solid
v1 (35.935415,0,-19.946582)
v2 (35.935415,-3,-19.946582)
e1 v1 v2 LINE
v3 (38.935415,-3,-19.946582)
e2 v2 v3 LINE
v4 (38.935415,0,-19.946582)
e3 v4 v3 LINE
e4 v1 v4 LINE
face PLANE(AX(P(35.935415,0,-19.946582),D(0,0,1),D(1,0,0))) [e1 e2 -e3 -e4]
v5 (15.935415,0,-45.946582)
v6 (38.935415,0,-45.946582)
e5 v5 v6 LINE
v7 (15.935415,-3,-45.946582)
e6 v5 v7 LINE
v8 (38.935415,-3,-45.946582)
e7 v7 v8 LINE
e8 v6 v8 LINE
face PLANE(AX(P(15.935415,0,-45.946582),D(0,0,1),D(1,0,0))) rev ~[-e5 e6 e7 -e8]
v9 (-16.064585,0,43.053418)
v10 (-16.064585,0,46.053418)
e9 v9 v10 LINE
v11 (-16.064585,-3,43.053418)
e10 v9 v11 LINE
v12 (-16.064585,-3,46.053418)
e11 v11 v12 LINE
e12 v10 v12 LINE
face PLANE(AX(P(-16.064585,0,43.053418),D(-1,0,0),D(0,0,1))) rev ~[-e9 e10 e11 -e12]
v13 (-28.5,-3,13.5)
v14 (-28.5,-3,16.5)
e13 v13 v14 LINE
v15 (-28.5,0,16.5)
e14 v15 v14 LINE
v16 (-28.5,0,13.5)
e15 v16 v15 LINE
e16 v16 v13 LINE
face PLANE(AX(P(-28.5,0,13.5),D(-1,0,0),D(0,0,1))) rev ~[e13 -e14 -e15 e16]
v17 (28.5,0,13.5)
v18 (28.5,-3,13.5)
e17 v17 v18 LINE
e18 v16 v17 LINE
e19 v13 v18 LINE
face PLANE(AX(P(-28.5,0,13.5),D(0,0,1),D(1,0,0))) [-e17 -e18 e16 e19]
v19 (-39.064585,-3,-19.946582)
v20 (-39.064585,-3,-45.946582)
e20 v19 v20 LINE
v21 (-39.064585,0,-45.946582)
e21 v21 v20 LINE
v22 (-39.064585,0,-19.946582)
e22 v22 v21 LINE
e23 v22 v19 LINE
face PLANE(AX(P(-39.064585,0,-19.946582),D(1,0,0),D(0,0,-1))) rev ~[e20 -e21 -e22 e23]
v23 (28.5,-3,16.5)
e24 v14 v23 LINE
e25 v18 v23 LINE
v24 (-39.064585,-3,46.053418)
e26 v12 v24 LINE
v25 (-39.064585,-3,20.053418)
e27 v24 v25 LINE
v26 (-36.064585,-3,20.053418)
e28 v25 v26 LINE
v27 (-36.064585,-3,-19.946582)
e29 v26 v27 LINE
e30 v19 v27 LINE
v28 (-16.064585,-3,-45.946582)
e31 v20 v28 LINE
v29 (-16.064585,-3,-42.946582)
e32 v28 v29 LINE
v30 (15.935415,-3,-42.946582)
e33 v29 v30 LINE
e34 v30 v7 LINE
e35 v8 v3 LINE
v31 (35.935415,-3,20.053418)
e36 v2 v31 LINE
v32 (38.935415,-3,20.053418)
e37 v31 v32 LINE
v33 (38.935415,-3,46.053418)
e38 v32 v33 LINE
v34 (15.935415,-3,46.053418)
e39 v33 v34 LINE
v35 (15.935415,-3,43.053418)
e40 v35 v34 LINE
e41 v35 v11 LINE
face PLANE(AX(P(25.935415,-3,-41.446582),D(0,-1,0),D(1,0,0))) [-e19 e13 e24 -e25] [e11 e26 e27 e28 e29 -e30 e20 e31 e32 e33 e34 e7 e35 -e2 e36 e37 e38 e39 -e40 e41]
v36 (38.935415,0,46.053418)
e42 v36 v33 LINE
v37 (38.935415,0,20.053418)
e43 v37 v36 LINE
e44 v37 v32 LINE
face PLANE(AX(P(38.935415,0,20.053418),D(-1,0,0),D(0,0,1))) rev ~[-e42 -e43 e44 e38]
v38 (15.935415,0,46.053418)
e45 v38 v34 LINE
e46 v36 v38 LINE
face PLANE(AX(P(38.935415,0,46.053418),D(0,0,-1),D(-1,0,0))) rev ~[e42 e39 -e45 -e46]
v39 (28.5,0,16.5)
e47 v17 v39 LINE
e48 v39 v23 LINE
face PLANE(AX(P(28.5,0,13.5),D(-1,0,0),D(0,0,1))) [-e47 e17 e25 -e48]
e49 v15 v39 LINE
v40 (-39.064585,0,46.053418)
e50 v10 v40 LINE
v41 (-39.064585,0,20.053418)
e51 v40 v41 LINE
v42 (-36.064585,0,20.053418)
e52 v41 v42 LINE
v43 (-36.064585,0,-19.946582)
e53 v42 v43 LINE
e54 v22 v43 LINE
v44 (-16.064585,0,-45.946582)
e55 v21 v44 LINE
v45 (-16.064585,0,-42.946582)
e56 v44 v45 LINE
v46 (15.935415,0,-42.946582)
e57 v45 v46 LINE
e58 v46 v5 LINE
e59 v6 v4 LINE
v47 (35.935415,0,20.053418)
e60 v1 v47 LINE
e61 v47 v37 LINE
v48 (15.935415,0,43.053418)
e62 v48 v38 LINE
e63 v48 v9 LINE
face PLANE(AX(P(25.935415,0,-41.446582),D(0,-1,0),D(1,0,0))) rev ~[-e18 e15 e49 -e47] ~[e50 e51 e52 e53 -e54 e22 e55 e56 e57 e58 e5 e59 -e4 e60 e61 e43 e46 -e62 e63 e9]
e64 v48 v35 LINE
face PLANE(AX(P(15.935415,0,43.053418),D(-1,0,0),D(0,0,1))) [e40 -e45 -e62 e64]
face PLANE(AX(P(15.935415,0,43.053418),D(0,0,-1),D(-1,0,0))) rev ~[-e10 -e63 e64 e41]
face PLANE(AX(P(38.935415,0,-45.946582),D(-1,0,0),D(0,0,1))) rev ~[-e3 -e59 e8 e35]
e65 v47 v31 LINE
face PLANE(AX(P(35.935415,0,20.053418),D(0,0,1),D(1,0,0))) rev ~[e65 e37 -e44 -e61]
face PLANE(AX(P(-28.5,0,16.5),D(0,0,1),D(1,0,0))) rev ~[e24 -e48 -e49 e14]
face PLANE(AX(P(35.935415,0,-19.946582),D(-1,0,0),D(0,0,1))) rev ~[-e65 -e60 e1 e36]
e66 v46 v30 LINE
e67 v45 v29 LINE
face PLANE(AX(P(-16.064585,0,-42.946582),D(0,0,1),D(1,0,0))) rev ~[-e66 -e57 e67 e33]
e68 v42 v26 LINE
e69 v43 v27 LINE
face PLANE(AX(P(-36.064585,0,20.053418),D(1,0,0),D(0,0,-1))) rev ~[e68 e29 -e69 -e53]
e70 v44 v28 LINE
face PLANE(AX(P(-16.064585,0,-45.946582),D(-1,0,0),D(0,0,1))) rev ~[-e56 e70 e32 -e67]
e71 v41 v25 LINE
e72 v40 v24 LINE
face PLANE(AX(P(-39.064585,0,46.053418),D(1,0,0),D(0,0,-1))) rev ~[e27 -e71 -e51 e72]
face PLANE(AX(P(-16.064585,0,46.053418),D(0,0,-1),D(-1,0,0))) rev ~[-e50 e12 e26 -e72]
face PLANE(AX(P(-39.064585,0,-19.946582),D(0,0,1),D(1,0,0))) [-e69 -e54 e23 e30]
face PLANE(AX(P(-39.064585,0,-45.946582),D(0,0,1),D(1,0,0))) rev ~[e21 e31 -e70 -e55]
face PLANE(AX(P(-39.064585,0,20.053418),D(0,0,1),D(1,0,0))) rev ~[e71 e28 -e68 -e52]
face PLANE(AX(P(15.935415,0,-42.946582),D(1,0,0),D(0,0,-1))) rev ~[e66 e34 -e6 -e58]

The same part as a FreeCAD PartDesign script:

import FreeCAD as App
import Part
import Sketcher

V = App.Vector

doc = App.newDocument("Part")
body = doc.addObject("PartDesign::Body", "Body")

sketch1 = body.newObject("Sketcher::SketchObject", "Sketch")
sketch1.AttachmentSupport = (doc.getObject("XZ_Plane"), [""])
sketch1.MapMode = "FlatFace"
sketch1.addGeometry(Part.LineSegment(V(38.9, -19.9, 0), V(35.9, -19.9, 0)), False)
sketch1.addGeometry(Part.LineSegment(V(35.9, -19.9, 0), V(35.9, 20.1, 0)), False)
sketch1.addGeometry(Part.LineSegment(V(35.9, 20.1, 0), V(38.9, 20.1, 0)), False)
sketch1.addGeometry(Part.LineSegment(V(38.9, 20.1, 0), V(38.9, 46.1, 0)), False)
sketch1.addGeometry(Part.LineSegment(V(38.9, 46.1, 0), V(15.9, 46.1, 0)), False)
sketch1.addGeometry(Part.LineSegment(V(15.9, 46.1, 0), V(15.9, 43.1, 0)), False)
sketch1.addGeometry(Part.LineSegment(V(15.9, 43.1, 0), V(-16.1, 43.1, 0)), False)
sketch1.addGeometry(Part.LineSegment(V(-16.1, 43.1, 0), V(-16.1, 46.1, 0)), False)
sketch1.addGeometry(Part.LineSegment(V(-16.1, 46.1, 0), V(-39.1, 46.1, 0)), False)
sketch1.addGeometry(Part.LineSegment(V(-39.1, 46.1, 0), V(-39.1, 20.1, 0)), False)
sketch1.addGeometry(Part.LineSegment(V(-39.1, 20.1, 0), V(-36.1, 20.1, 0)), False)
sketch1.addGeometry(Part.LineSegment(V(-36.1, 20.1, 0), V(-36.1, -19.9, 0)), False)
sketch1.addGeometry(Part.LineSegment(V(-36.1, -19.9, 0), V(-39.1, -19.9, 0)), False)
sketch1.addGeometry(Part.LineSegment(V(-39.1, -19.9, 0), V(-39.1, -45.9, 0)), False)
sketch1.addGeometry(Part.LineSegment(V(-39.1, -45.9, 0), V(-16.1, -45.9, 0)), False)
sketch1.addGeometry(Part.LineSegment(V(-16.1, -45.9, 0), V(-16.1, -42.9, 0)), False)
sketch1.addGeometry(Part.LineSegment(V(-16.1, -42.9, 0), V(15.9, -42.9, 0)), False)
sketch1.addGeometry(Part.LineSegment(V(15.9, -42.9, 0), V(15.9, -45.9, 0)), False)
sketch1.addGeometry(Part.LineSegment(V(15.9, -45.9, 0), V(38.9, -45.9, 0)), False)
sketch1.addGeometry(Part.LineSegment(V(38.9, -45.9, 0), V(38.9, -19.9, 0)), False)
sketch1.addGeometry(Part.LineSegment(V(28.5, 13.5, 0), V(-28.5, 13.5, 0)), False)
sketch1.addGeometry(Part.LineSegment(V(-28.5, 13.5, 0), V(-28.5, 16.5, 0)), False)
sketch1.addGeometry(Part.LineSegment(V(-28.5, 16.5, 0), V(28.5, 16.5, 0)), False)
sketch1.addGeometry(Part.LineSegment(V(28.5, 16.5, 0), V(28.5, 13.5, 0)), False)
sketch1.addConstraint(Sketcher.Constraint("Coincident", 0, 2, 1, 1))
sketch1.addConstraint(Sketcher.Constraint("Coincident", 1, 2, 2, 1))
sketch1.addConstraint(Sketcher.Constraint("Coincident", 2, 2, 3, 1))
sketch1.addConstraint(Sketcher.Constraint("Coincident", 3, 2, 4, 1))
sketch1.addConstraint(Sketcher.Constraint("Coincident", 4, 2, 5, 1))
sketch1.addConstraint(Sketcher.Constraint("Coincident", 5, 2, 6, 1))
sketch1.addConstraint(Sketcher.Constraint("Coincident", 6, 2, 7, 1))
sketch1.addConstraint(Sketcher.Constraint("Coincident", 7, 2, 8, 1))
sketch1.addConstraint(Sketcher.Constraint("Coincident", 8, 2, 9, 1))
sketch1.addConstraint(Sketcher.Constraint("Coincident", 9, 2, 10, 1))
sketch1.addConstraint(Sketcher.Constraint("Coincident", 10, 2, 11, 1))
sketch1.addConstraint(Sketcher.Constraint("Coincident", 11, 2, 12, 1))
sketch1.addConstraint(Sketcher.Constraint("Coincident", 12, 2, 13, 1))
sketch1.addConstraint(Sketcher.Constraint("Coincident", 13, 2, 14, 1))
sketch1.addConstraint(Sketcher.Constraint("Coincident", 14, 2, 15, 1))
sketch1.addConstraint(Sketcher.Constraint("Coincident", 15, 2, 16, 1))
sketch1.addConstraint(Sketcher.Constraint("Coincident", 16, 2, 17, 1))
sketch1.addConstraint(Sketcher.Constraint("Coincident", 17, 2, 18, 1))
sketch1.addConstraint(Sketcher.Constraint("Coincident", 18, 2, 19, 1))
sketch1.addConstraint(Sketcher.Constraint("Coincident", 19, 2, 0, 1))
sketch1.addConstraint(Sketcher.Constraint("Coincident", 20, 2, 21, 1))
sketch1.addConstraint(Sketcher.Constraint("Coincident", 21, 2, 22, 1))
sketch1.addConstraint(Sketcher.Constraint("Coincident", 22, 2, 23, 1))
sketch1.addConstraint(Sketcher.Constraint("Coincident", 23, 2, 20, 1))
sketch1.addConstraint(Sketcher.Constraint("Horizontal", 0))
sketch1.addConstraint(Sketcher.Constraint("Vertical", 1))
sketch1.addConstraint(Sketcher.Constraint("Horizontal", 2))
sketch1.addConstraint(Sketcher.Constraint("Vertical", 3))
sketch1.addConstraint(Sketcher.Constraint("Horizontal", 4))
sketch1.addConstraint(Sketcher.Constraint("Vertical", 5))
sketch1.addConstraint(Sketcher.Constraint("Horizontal", 6))
sketch1.addConstraint(Sketcher.Constraint("Vertical", 7))
sketch1.addConstraint(Sketcher.Constraint("Horizontal", 8))
sketch1.addConstraint(Sketcher.Constraint("Vertical", 9))
sketch1.addConstraint(Sketcher.Constraint("Horizontal", 10))
sketch1.addConstraint(Sketcher.Constraint("Vertical", 11))
sketch1.addConstraint(Sketcher.Constraint("Horizontal", 12))
sketch1.addConstraint(Sketcher.Constraint("Vertical", 13))
sketch1.addConstraint(Sketcher.Constraint("Horizontal", 14))
sketch1.addConstraint(Sketcher.Constraint("Vertical", 15))
sketch1.addConstraint(Sketcher.Constraint("Horizontal", 16))
sketch1.addConstraint(Sketcher.Constraint("Vertical", 17))
sketch1.addConstraint(Sketcher.Constraint("Horizontal", 18))
sketch1.addConstraint(Sketcher.Constraint("Vertical", 19))
sketch1.addConstraint(Sketcher.Constraint("Horizontal", 20))
sketch1.addConstraint(Sketcher.Constraint("Vertical", 21))
sketch1.addConstraint(Sketcher.Constraint("Horizontal", 22))
sketch1.addConstraint(Sketcher.Constraint("Vertical", 23))
sketch1.addConstraint(Sketcher.Constraint("Horizontal", 4, 2, 7, 2))
sketch1.addConstraint(Sketcher.Constraint("Horizontal", 2, 2, 9, 2))
sketch1.addConstraint(Sketcher.Constraint("Horizontal", 0, 2, 11, 2))
sketch1.addConstraint(Sketcher.Constraint("Horizontal", 14, 2, 17, 2))
sketch1.addConstraint(Sketcher.Constraint("Vertical", 9, 2, 12, 2))
sketch1.addConstraint(Sketcher.Constraint("Vertical", 7, 2, 14, 2))
sketch1.addConstraint(Sketcher.Constraint("Vertical", 5, 2, 16, 2))
sketch1.addConstraint(Sketcher.Constraint("Vertical", 3, 2, 18, 2))
sketch1.addConstraint(Sketcher.Constraint("Equal", 4, 8))
sketch1.addConstraint(Sketcher.Constraint("Equal", 2, 10))
sketch1.addConstraint(Sketcher.Constraint("Equal", 12, 5))
sketch1.addConstraint(Sketcher.Constraint("Equal", 9, 13))
sketch1.addConstraint(Sketcher.Constraint("Equal", 7, 15))
sketch1.addConstraint(Sketcher.Constraint("Equal", 17, 21))
sketch1.addConstraint(Sketcher.Constraint("DistanceX", 0, 2, 0, 1, 3.0))
sketch1.addConstraint(Sketcher.Constraint("DistanceX", 4, 2, 4, 1, 23.0))
sketch1.addConstraint(Sketcher.Constraint("DistanceX", 6, 2, 6, 1, 32.0))
sketch1.addConstraint(Sketcher.Constraint("DistanceX", 20, 2, 20, 1, 57.0))
sketch1.addConstraint(Sketcher.Constraint("DistanceY", 1, 1, 1, 2, 40.0))
sketch1.addConstraint(Sketcher.Constraint("DistanceY", 3, 1, 3, 2, 26.0))
sketch1.addConstraint(Sketcher.Constraint("DistanceX", 20, 2, -1, 1, 28.5))
sketch1.addConstraint(Sketcher.Constraint("DistanceY", -1, 1, 20, 2, 13.5))
sketch1.addConstraint(Sketcher.Constraint("DistanceX", -1, 1, 0, 2, 35.935415))
sketch1.addConstraint(Sketcher.Constraint("DistanceY", 0, 2, -1, 1, 19.946582))
pad1 = body.newObject("PartDesign::Pad", "Pad")
pad1.Profile = sketch1
pad1.Length = 3

doc.recompute()
